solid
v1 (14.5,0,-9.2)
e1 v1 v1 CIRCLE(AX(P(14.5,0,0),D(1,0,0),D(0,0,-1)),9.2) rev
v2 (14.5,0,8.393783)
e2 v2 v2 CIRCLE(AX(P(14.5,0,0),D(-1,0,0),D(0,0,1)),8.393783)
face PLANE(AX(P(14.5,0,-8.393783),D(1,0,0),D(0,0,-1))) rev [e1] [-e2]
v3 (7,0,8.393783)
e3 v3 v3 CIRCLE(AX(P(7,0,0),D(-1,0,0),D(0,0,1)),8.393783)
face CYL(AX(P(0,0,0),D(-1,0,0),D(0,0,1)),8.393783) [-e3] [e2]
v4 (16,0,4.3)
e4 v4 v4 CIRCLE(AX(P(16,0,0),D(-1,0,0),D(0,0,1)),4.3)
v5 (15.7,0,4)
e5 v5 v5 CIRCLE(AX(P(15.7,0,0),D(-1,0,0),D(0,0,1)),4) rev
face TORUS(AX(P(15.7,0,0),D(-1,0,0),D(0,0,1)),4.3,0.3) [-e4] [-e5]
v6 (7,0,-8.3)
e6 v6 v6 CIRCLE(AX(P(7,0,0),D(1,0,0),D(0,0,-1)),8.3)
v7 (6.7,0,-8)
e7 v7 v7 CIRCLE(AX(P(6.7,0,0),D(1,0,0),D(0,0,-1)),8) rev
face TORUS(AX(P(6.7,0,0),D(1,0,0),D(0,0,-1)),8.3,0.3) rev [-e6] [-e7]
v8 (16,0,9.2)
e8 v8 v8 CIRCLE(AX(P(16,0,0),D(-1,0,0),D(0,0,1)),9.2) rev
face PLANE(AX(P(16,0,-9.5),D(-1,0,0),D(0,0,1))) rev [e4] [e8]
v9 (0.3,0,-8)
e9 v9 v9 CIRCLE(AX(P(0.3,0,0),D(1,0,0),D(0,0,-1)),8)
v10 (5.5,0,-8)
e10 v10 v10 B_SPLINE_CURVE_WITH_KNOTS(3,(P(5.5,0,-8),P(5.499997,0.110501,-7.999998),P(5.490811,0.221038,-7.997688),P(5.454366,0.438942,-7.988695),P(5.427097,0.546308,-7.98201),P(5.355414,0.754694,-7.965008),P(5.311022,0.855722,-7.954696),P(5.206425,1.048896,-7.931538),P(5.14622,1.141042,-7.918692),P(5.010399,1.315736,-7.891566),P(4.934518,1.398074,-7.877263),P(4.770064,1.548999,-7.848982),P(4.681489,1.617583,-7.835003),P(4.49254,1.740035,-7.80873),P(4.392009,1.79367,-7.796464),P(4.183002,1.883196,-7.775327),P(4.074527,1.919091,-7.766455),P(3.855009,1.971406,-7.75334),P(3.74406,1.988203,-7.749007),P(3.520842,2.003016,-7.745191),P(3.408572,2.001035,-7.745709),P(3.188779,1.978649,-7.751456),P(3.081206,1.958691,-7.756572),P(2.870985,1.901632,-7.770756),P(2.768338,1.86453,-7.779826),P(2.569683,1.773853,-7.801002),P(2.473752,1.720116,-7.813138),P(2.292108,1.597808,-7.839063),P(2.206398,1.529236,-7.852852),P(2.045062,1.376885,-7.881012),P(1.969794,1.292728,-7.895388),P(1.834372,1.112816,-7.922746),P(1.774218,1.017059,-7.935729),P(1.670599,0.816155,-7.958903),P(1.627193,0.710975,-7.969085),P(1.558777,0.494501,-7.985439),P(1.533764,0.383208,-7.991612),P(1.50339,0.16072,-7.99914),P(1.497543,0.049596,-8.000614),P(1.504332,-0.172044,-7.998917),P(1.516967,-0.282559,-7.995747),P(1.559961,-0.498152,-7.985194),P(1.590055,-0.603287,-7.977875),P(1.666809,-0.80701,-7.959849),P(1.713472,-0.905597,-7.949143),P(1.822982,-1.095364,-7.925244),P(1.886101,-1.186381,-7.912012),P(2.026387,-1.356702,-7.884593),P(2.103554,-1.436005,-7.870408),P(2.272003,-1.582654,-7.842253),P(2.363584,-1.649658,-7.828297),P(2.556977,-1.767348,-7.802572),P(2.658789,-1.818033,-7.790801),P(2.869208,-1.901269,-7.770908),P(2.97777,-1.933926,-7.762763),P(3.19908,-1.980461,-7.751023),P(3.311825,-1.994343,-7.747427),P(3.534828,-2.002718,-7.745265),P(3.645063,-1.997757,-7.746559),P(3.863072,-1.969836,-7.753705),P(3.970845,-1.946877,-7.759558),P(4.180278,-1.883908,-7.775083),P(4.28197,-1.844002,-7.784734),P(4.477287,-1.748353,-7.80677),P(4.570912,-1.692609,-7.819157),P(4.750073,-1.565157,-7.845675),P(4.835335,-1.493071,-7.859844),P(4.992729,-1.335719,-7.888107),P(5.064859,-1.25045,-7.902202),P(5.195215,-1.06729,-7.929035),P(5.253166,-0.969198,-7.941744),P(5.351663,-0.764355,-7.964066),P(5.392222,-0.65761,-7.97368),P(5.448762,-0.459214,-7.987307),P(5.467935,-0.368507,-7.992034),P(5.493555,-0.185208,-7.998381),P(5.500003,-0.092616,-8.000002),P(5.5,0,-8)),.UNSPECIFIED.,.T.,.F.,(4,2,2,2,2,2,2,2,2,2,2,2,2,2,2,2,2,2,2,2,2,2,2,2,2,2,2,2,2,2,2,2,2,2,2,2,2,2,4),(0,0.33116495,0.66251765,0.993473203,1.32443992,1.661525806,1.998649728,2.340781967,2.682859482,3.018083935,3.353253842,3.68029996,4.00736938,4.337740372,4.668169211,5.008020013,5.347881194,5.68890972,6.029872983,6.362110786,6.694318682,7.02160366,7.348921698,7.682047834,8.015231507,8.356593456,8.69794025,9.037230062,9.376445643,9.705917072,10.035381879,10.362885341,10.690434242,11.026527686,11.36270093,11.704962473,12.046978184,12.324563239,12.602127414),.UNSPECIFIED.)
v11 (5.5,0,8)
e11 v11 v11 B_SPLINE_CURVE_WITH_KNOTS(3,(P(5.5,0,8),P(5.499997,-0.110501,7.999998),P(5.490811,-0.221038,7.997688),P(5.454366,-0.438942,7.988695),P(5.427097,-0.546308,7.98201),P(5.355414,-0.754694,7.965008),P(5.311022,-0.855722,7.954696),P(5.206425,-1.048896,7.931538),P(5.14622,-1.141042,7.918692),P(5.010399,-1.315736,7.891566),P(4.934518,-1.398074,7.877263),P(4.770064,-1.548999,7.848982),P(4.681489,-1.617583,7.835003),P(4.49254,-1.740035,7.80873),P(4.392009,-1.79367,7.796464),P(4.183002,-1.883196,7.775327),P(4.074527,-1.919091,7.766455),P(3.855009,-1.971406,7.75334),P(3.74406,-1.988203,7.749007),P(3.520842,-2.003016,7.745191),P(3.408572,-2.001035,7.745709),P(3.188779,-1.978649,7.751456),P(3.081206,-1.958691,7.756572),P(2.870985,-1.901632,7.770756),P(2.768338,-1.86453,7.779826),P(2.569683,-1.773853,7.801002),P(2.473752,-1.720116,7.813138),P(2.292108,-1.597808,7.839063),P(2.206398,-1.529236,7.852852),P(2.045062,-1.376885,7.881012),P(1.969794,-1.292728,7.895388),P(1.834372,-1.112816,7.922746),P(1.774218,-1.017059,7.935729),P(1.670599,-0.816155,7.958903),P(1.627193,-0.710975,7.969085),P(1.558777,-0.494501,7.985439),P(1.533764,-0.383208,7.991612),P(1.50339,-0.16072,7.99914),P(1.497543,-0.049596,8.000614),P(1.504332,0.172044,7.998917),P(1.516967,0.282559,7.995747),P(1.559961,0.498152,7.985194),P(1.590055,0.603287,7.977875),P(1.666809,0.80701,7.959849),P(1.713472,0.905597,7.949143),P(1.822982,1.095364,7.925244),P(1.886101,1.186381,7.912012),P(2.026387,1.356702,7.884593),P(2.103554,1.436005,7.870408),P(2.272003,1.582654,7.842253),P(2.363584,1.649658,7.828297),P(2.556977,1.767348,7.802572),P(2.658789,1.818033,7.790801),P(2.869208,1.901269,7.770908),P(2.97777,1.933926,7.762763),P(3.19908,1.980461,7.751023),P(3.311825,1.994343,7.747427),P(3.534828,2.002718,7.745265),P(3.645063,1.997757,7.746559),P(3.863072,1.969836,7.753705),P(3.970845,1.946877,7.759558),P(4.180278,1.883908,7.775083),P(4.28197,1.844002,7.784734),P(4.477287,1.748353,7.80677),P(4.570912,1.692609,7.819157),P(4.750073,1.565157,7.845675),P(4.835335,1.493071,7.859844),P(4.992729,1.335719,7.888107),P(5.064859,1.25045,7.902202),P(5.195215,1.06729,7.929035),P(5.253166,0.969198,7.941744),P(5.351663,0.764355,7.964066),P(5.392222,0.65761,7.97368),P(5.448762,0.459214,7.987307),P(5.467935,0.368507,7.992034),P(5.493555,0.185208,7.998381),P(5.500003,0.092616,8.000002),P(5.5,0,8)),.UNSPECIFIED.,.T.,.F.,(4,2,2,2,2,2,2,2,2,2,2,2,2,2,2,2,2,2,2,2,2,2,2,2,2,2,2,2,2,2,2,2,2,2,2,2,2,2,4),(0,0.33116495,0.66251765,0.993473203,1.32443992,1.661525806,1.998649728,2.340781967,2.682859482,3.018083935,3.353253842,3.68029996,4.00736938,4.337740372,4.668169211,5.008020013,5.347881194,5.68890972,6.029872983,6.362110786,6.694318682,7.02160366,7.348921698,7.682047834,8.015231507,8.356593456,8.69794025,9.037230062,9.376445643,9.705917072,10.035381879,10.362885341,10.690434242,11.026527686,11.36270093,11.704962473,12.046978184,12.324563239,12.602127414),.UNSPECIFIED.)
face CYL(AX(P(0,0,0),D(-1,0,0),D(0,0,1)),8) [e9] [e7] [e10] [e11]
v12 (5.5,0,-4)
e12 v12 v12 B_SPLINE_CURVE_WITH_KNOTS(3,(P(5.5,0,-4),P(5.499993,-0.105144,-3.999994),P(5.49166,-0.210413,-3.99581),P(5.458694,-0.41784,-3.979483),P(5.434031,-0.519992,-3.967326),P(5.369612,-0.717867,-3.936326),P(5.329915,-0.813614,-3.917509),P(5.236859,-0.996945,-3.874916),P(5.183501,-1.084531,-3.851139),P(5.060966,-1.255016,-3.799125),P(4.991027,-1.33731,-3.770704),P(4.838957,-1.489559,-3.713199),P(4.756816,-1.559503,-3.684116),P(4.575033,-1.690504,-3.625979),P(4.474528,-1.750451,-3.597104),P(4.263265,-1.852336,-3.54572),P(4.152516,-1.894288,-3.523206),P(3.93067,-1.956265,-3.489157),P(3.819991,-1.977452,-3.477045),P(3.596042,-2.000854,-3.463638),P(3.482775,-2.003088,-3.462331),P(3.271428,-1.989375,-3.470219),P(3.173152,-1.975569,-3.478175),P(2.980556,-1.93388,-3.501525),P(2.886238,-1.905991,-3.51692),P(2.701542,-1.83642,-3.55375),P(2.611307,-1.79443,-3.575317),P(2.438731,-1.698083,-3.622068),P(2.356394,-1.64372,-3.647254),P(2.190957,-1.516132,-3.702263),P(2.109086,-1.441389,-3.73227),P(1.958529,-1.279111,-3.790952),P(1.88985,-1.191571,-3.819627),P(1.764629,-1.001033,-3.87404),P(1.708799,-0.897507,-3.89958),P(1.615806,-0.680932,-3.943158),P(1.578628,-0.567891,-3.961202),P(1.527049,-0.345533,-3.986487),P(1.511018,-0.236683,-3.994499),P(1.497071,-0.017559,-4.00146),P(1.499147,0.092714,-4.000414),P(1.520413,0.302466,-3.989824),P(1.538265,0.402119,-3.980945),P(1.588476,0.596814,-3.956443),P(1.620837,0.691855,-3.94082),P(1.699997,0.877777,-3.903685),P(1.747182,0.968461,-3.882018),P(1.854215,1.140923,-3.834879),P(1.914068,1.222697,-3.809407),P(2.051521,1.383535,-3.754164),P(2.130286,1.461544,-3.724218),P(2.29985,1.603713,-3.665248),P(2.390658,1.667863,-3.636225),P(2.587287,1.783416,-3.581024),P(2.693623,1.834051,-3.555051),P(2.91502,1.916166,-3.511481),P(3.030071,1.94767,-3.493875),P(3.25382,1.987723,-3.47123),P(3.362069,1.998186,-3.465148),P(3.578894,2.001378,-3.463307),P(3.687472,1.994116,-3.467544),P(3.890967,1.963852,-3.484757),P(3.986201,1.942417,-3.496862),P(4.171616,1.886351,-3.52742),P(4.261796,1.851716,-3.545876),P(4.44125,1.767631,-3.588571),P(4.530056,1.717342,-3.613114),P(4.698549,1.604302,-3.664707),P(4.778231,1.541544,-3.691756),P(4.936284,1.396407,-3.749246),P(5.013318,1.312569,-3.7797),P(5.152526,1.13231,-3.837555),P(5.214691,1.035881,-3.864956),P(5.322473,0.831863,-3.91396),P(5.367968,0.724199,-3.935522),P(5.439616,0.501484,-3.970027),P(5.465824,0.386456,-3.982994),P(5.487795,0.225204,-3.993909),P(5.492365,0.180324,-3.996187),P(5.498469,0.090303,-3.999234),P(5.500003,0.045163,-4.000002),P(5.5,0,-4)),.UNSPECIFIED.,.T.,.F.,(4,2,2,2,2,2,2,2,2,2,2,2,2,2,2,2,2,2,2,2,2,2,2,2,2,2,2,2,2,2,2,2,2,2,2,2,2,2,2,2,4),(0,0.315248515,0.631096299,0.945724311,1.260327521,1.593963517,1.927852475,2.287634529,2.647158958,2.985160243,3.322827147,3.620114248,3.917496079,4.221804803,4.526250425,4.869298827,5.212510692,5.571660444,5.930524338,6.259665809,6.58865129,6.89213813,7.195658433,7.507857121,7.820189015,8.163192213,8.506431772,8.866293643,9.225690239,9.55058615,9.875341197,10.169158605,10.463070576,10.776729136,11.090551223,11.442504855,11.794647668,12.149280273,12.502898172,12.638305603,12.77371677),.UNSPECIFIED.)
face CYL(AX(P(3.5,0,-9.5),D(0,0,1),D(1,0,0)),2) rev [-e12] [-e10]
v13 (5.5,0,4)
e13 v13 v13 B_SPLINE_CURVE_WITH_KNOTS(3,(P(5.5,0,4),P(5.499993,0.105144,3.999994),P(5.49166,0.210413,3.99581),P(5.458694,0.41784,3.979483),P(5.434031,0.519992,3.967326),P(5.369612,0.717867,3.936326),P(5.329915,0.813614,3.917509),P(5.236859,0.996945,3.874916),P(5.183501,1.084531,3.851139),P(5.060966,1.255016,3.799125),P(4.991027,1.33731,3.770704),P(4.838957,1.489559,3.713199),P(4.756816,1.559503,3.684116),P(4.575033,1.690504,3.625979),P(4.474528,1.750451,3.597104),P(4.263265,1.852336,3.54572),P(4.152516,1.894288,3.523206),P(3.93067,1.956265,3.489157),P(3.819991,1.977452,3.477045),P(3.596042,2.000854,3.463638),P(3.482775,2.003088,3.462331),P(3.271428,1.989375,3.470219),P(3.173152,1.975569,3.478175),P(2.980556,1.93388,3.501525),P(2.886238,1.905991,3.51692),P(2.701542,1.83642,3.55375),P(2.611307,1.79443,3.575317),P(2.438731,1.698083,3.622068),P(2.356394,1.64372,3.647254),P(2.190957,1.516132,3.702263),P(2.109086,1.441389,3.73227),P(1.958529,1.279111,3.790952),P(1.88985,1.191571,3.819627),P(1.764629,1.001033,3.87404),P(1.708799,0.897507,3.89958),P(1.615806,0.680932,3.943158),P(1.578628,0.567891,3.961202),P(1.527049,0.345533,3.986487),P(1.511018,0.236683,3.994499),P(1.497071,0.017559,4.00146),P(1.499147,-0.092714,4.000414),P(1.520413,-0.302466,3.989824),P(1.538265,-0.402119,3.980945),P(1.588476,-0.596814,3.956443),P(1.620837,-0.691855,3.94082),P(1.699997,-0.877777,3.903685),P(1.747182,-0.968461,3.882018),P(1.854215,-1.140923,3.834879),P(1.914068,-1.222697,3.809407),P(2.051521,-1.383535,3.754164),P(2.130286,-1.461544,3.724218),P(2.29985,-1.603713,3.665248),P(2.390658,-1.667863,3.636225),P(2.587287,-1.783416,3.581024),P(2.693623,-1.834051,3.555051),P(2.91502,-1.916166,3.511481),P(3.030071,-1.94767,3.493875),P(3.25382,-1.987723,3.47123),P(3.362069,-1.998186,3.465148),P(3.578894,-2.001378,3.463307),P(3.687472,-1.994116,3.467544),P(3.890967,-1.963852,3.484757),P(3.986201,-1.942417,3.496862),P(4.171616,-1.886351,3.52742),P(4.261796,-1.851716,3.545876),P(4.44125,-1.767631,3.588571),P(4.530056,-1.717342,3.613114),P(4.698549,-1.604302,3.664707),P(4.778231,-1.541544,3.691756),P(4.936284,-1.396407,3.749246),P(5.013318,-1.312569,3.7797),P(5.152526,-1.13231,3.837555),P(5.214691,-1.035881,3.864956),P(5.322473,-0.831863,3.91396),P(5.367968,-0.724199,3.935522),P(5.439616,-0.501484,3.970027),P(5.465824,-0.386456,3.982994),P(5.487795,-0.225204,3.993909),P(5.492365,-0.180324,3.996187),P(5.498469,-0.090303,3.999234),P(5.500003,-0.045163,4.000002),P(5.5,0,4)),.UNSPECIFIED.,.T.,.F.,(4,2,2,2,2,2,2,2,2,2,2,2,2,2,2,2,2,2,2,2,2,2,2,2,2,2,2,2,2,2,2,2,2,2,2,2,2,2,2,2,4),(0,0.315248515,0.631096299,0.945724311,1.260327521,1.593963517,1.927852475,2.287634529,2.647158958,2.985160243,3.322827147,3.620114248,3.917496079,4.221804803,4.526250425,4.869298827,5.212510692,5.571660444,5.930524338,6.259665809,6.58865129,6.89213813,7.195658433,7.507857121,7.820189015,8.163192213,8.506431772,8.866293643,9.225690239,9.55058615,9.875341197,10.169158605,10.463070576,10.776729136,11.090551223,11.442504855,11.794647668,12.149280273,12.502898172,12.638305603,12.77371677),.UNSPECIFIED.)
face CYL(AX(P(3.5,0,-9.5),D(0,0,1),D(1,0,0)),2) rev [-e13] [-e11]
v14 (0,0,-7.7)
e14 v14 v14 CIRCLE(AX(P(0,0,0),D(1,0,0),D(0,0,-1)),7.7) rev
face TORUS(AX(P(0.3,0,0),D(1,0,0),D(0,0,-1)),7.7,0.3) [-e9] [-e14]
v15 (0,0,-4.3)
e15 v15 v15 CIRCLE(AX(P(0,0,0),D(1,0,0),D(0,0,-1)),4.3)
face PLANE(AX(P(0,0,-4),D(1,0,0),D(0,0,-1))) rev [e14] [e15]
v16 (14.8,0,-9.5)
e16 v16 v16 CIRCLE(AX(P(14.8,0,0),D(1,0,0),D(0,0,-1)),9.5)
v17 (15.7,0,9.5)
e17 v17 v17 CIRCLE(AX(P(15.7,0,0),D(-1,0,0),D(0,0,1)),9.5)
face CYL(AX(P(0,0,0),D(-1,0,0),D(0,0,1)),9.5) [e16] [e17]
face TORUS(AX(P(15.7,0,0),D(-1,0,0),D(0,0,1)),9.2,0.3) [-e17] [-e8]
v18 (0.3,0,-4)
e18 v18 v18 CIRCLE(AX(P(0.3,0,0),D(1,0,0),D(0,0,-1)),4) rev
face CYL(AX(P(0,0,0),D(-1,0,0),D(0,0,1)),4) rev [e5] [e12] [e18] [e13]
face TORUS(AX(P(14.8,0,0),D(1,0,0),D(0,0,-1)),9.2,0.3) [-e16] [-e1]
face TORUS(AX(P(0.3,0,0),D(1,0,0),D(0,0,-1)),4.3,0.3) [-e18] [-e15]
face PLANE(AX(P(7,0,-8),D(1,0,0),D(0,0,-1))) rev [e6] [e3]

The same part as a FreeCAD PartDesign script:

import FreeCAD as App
import Part
import Sketcher
from FreeCAD import Vector
Q = App.Units.Quantity


def edges_at(feature, points):
    """Names of the edges that pass closest to the given points."""
    edges = feature.Shape.Edges
    near = lambda p: min(range(len(edges)), key=lambda i: edges[i].distToShape(Part.Vertex(*p))[0])
    return sorted({f"Edge{near(p) + 1}" for p in points})


def add_polygon(sketch, points):
    """Adds a closed chain of lines whose ends are joined by coincident constraints."""
    first, n = sketch.GeometryCount, len(points)
    for a, b in zip(points, points[1:] + points[:1]):
        sketch.addGeometry(Part.LineSegment(App.Vector(*a, 0), App.Vector(*b, 0)), False)
    for i in range(n):
        sketch.addConstraint(Sketcher.Constraint("Coincident", first + i, 2, first + (i + 1) % n, 1))

doc = App.newDocument("Part")
params = doc.addObject("Spreadsheet::Sheet", "Params")
for row, (alias, value) in enumerate([
    ("sketch1_width", "16 mm"),
    ("sketch1_width2", "7 mm"),
    ("sketch1_height", "4 mm"),
    ("sketch1_width3", "1.5 mm"),
    ("sketch1_height2", "5.5 mm"),
    ("revolution_angle", "360 deg"),
    ("fillet_radius", "0.3 mm"),
    ("sketch2_diameter", "4 mm"),
], start=1):
    params.set(f"A{row}", alias)
    params.set(f"B{row}", "=" + value)
    params.setAlias(f"B{row}", alias)

body = doc.addObject("PartDesign::Body", "Body")

# Sketch on XZ plane
sketch1 = body.newObject("Sketcher::SketchObject", "Sketch")
sketch1.AttachmentSupport = (doc.getObject("XZ_Plane"), [""])
sketch1.MapMode = "FlatFace"
add_polygon(sketch1, [(0, -8), (0, -4), (16, -4), (16, -9.5), (14.5, -9.5), (14.5, -8.39), (7, -8.39), (7, -8)])  # lines 0-7
sketch1.addConstraint([
    Sketcher.Constraint("Vertical", 0),
    Sketcher.Constraint("Horizontal", 1),
    Sketcher.Constraint("Vertical", 2),
    Sketcher.Constraint("Horizontal", 3),
    Sketcher.Constraint("Vertical", 4),
    Sketcher.Constraint("Horizontal", 5),
    Sketcher.Constraint("Vertical", 6),
    Sketcher.Constraint("Horizontal", 7),
    Sketcher.Constraint("PointOnObject", 0, 2, -2),
    Sketcher.Constraint("DistanceX", 1, 1, 1, 2, Q("16 mm")),
    Sketcher.Constraint("DistanceX", 7, 2, 7, 1, Q("7 mm")),
    Sketcher.Constraint("DistanceY", 0, 1, 0, 2, Q("4 mm")),
    Sketcher.Constraint("DistanceX", 3, 2, 3, 1, Q("1.5 mm")),
    Sketcher.Constraint("DistanceY", 2, 2, 2, 1, Q("5.5 mm")),
    Sketcher.Constraint("DistanceY", 0, 2, -1, 1, Q("4 mm")),
    Sketcher.Constraint("DistanceY", 4, 1, 4, 2, Q("1.106217 mm")),
])
sketch1.setExpression("Constraints[17]", "Params.sketch1_width")
sketch1.setExpression("Constraints[18]", "Params.sketch1_width2")
sketch1.setExpression("Constraints[19]", "Params.sketch1_height")
sketch1.setExpression("Constraints[20]", "Params.sketch1_width3")
sketch1.setExpression("Constraints[21]", "Params.sketch1_height2")
revolution = body.newObject("PartDesign::Revolution", "Revolution")
revolution.Profile = sketch1
revolution.ReferenceAxis = (sketch1, ["H_Axis"])
revolution.setExpression("Angle", "Params.revolution_angle")
doc.recompute()

fillet = body.newObject("PartDesign::Fillet", "Fillet")
fillet.Base = (revolution, edges_at(revolution, [
    (0, 0, 4),
    (16, 0, 4),
    (16, 0, 9.5),
    (14.5, 0, 9.5),
    (7, 0, 8),
    (0, 0, 8),
]))
fillet.setExpression("Radius", "Params.fillet_radius")

# Sketch on XY plane
sketch2 = body.newObject("Sketcher::SketchObject", "Sketch001")
sketch2.AttachmentSupport = (doc.getObject("XY_Plane"), [""])
sketch2.MapMode = "FlatFace"
sketch2.addGeometry(Part.Circle(Vector(3.5, 0, 0), Vector(0, 0, 1), 2), False)
sketch2.addConstraint([
    Sketcher.Constraint("PointOnObject", 0, 3, -1),
    Sketcher.Constraint("Diameter", 0, Q("4 mm")),
    Sketcher.Constraint("DistanceX", -1, 1, 0, 3, Q("3.5 mm")),
])
sketch2.setExpression("Constraints[1]", "Params.sketch2_diameter")
pocket1 = body.newObject("PartDesign::Pocket", "Pocket")
pocket1.Profile = sketch2
pocket1.Type = "ThroughAll"
pocket1.Midplane = True

doc.recompute()
